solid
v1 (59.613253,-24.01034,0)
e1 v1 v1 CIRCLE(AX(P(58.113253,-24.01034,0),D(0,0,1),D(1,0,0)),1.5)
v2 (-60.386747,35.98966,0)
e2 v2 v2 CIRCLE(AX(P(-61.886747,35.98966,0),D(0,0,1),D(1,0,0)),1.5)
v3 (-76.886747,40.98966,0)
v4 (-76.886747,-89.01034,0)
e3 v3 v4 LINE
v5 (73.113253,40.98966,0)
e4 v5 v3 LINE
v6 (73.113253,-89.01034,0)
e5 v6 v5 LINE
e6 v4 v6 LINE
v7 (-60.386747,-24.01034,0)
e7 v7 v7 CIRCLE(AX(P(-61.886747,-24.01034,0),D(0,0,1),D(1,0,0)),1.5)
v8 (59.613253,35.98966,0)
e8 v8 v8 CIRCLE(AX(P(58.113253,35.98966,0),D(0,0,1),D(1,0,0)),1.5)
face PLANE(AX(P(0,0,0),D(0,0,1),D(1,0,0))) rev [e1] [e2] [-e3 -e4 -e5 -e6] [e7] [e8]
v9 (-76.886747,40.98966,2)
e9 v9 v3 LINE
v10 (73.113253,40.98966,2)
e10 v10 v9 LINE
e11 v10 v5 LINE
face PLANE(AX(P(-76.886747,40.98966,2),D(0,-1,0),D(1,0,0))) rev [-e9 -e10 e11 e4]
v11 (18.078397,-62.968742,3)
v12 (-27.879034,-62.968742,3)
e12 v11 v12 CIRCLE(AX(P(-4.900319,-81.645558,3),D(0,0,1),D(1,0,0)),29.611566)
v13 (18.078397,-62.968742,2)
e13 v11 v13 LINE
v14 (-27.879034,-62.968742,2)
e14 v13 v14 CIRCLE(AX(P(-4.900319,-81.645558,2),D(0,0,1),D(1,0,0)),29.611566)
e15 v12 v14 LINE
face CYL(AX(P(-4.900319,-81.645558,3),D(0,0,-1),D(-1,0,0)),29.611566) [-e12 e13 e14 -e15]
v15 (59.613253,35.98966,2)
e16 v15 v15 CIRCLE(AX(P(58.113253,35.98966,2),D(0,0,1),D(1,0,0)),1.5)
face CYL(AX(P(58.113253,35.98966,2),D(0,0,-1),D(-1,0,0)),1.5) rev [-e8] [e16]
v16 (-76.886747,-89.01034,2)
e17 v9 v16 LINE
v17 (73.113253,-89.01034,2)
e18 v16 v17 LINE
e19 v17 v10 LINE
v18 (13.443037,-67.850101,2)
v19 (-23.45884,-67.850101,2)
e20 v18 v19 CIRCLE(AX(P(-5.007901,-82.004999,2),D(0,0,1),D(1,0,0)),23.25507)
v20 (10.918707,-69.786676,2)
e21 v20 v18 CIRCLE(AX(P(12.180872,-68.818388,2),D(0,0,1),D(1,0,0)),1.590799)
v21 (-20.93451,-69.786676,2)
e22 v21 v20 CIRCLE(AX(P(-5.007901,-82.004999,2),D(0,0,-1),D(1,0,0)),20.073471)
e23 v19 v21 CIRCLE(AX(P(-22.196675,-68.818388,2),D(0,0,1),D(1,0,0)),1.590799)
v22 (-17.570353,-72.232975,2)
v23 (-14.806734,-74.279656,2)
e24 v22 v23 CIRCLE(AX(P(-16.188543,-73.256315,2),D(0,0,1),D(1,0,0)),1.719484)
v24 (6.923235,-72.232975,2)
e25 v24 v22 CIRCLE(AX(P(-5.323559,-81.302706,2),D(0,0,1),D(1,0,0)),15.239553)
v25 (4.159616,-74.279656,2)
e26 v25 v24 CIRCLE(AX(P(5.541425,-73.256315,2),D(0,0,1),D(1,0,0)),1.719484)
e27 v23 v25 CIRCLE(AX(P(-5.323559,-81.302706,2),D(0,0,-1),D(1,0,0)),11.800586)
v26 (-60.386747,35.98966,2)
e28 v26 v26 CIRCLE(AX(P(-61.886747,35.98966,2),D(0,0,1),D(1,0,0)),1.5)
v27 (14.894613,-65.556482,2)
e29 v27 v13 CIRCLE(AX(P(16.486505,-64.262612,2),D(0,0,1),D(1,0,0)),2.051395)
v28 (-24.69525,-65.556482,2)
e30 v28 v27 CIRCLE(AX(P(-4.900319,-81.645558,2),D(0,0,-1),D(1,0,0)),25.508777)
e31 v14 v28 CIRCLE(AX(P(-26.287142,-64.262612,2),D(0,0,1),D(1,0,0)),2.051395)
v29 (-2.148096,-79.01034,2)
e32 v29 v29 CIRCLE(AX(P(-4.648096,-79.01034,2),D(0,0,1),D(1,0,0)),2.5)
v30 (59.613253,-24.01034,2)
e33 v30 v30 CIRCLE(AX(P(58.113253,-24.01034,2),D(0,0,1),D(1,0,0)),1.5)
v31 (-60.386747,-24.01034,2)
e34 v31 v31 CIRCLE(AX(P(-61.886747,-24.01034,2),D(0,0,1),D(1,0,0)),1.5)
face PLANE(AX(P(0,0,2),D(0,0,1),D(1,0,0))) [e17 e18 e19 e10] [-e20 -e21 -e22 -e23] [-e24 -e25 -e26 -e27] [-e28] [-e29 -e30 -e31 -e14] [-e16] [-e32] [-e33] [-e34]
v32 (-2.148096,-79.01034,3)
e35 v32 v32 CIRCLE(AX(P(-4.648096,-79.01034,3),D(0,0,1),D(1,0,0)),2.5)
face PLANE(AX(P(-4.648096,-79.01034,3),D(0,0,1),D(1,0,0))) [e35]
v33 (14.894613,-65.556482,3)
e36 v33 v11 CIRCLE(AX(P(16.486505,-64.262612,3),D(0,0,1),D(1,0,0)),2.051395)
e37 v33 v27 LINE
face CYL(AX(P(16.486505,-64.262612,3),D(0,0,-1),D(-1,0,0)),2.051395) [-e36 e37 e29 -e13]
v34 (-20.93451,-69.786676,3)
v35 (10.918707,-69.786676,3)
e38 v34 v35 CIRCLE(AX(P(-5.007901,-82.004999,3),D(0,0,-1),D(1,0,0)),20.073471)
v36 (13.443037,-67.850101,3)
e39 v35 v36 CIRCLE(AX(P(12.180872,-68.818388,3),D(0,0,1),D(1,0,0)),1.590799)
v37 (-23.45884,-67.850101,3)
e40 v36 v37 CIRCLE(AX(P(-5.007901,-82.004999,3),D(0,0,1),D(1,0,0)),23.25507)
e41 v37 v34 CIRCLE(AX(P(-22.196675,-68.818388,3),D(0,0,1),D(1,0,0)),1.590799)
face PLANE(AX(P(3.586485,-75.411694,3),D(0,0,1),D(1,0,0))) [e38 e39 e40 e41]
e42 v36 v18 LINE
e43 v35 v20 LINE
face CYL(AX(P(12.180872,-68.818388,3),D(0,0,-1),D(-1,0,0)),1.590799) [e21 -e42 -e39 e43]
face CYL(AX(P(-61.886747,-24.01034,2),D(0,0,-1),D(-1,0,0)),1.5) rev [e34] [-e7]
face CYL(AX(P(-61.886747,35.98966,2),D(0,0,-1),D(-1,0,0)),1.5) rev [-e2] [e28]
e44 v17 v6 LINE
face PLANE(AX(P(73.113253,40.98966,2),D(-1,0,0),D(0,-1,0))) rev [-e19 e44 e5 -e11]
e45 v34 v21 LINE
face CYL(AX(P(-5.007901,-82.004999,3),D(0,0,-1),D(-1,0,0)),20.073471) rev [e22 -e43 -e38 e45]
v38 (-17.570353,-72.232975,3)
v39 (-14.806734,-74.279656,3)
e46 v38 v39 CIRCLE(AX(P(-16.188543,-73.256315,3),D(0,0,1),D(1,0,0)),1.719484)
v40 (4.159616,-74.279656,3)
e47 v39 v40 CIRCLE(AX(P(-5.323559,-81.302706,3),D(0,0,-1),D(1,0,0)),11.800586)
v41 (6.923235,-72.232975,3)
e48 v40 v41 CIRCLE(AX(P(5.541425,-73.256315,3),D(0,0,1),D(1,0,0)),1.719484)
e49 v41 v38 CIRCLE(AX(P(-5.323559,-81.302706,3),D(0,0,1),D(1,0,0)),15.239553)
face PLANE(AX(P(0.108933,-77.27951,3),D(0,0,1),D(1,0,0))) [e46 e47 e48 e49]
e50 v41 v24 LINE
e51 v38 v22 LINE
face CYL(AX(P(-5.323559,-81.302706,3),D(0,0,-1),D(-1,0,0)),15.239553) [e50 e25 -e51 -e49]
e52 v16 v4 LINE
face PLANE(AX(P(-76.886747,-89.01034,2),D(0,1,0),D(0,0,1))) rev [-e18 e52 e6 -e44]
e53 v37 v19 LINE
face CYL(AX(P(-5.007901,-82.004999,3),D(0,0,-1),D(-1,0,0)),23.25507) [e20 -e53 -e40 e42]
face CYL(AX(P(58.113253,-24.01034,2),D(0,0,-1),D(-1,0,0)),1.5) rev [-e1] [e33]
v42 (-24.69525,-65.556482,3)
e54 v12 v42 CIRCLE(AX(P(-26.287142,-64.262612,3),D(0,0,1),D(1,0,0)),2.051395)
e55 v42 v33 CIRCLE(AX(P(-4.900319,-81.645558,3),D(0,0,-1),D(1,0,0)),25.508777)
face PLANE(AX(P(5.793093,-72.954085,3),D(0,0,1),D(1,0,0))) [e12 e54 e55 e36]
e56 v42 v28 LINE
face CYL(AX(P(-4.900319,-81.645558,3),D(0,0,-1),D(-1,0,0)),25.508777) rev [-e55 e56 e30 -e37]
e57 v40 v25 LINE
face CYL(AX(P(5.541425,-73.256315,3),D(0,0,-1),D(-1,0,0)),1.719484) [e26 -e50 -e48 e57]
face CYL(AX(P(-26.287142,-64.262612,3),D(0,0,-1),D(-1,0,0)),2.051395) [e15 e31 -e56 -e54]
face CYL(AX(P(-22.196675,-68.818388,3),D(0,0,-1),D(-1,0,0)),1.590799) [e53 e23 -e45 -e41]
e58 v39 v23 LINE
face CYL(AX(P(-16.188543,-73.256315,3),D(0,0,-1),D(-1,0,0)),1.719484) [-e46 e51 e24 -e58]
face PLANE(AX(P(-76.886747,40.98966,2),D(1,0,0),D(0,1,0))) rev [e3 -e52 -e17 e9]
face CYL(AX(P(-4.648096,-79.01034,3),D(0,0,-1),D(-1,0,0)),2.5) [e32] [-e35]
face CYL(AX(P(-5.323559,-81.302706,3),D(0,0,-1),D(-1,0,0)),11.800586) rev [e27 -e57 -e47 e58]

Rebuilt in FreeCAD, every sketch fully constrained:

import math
import FreeCAD as App
import Part
import Sketcher

V = App.Vector

doc = App.newDocument("Part")
body = doc.addObject("PartDesign::Body", "Body")

# Sketch on XY plane
sketch1 = body.newObject("Sketcher::SketchObject", "Sketch")
sketch1.AttachmentSupport = (doc.getObject("XY_Plane"), [""])
sketch1.MapMode = "FlatFace"
sketch1.addGeometry(Part.LineSegment(V(-76.886747, 40.98966, 0), V(-76.886747, -89.01034, 0)), False)
sketch1.addGeometry(Part.LineSegment(V(-76.886747, -89.01034, 0), V(73.113253, -89.01034, 0)), False)
sketch1.addGeometry(Part.LineSegment(V(73.113253, -89.01034, 0), V(73.113253, 40.98966, 0)), False)
sketch1.addGeometry(Part.LineSegment(V(73.113253, 40.98966, 0), V(-76.886747, 40.98966, 0)), False)
sketch1.addGeometry(Part.Circle(V(-61.886747, -24.01034, 0), V(0, 0, 1), 1.5), False)
sketch1.addGeometry(Part.Circle(V(58.113253, -24.01034, 0), V(0, 0, 1), 1.5), False)
sketch1.addGeometry(Part.Circle(V(-61.886747, 35.98966, 0), V(0, 0, 1), 1.5), False)
sketch1.addGeometry(Part.Circle(V(58.113253, 35.98966, 0), V(0, 0, 1), 1.5), False)
sketch1.addConstraint(Sketcher.Constraint("Coincident", 0, 2, 1, 1))
sketch1.addConstraint(Sketcher.Constraint("Coincident", 1, 2, 2, 1))
sketch1.addConstraint(Sketcher.Constraint("Coincident", 2, 2, 3, 1))
sketch1.addConstraint(Sketcher.Constraint("Coincident", 3, 2, 0, 1))
sketch1.addConstraint(Sketcher.Constraint("Vertical", 0))
sketch1.addConstraint(Sketcher.Constraint("Horizontal", 1))
sketch1.addConstraint(Sketcher.Constraint("Vertical", 2))
sketch1.addConstraint(Sketcher.Constraint("Horizontal", 3))
sketch1.addConstraint(Sketcher.Constraint("Equal", 4, 5))
sketch1.addConstraint(Sketcher.Constraint("Equal", 5, 6))
sketch1.addConstraint(Sketcher.Constraint("Equal", 6, 7))
sketch1.addConstraint(Sketcher.Constraint("Horizontal", 4, 3, 5, 3))
sketch1.addConstraint(Sketcher.Constraint("Horizontal", 6, 3, 7, 3))
sketch1.addConstraint(Sketcher.Constraint("Vertical", 4, 3, 6, 3))
sketch1.addConstraint(Sketcher.Constraint("Vertical", 5, 3, 7, 3))
sketch1.addConstraint(Sketcher.Constraint("Diameter", 4, 3.0))
sketch1.addConstraint(Sketcher.Constraint("DistanceX", 1, 1, 1, 2, 150.0))
sketch1.addConstraint(Sketcher.Constraint("DistanceY", 0, 2, 0, 1, 130.0))
sketch1.addConstraint(Sketcher.Constraint("DistanceX", 4, 3, 5, 3, 120.0))
sketch1.addConstraint(Sketcher.Constraint("DistanceY", 4, 3, 6, 3, 60.0))
sketch1.addConstraint(Sketcher.Constraint("DistanceX", 0, 2, 4, 3, 15.0))
sketch1.addConstraint(Sketcher.Constraint("DistanceY", 0, 2, 4, 3, 65.0))
sketch1.addConstraint(Sketcher.Constraint("DistanceY", 4, 3, -1, 1, 24.01034))
sketch1.addConstraint(Sketcher.Constraint("DistanceX", 4, 3, -1, 1, 61.886747))
pad1 = body.newObject("PartDesign::Pad", "Pad")
pad1.Profile = sketch1
pad1.Length = 2

# Sketch on XY plane
sketch2 = body.newObject("Sketcher::SketchObject", "Sketch001")
sketch2.AttachmentSupport = (doc.getObject("XY_Plane"), [""])
sketch2.MapMode = "FlatFace"
sketch2.AttachmentOffset = App.Placement(V(0, 0, 2), App.Rotation())
sketch2.addGeometry(Part.Circle(V(-4.648096, -79.01034, 0), V(0, 0, 1), 2.5), False)
sketch2.addGeometry(Part.ArcOfCircle(Part.Circle(V(-5.323559, -81.302706, 0), V(0, 0, 1), 15.239553), math.radians(36.522908), math.radians(143.477092)), False)
sketch2.addGeometry(Part.ArcOfCircle(Part.Circle(V(-16.188543, -73.256315, 0), V(0, 0, 1), 1.719484), math.radians(143.477092), math.radians(323.477092)), False)
sketch2.addGeometry(Part.ArcOfCircle(Part.Circle(V(-5.323559, -81.302706, 0), V(0, 0, 1), 11.800586), math.radians(36.522908), math.radians(143.477092)), False)
sketch2.addGeometry(Part.ArcOfCircle(Part.Circle(V(5.541425, -73.256315, 0), V(0, 0, 1), 1.719484), math.radians(-143.477092), math.radians(36.522908)), False)
sketch2.addGeometry(Part.ArcOfCircle(Part.Circle(V(-4.900319, -81.645558, 0), V(0, 0, 1), 29.611566), math.radians(39.103785), math.radians(140.896215)), False)
sketch2.addGeometry(Part.ArcOfCircle(Part.Circle(V(-26.287142, -64.262612, 0), V(0, 0, 1), 2.051395), math.radians(140.896215), math.radians(320.896215)), False)
sketch2.addGeometry(Part.ArcOfCircle(Part.Circle(V(-4.900319, -81.645558, 0), V(0, 0, 1), 25.508777), math.radians(39.103785), math.radians(140.896215)), False)
sketch2.addGeometry(Part.ArcOfCircle(Part.Circle(V(16.486505, -64.262612, 0), V(0, 0, 1), 2.051395), math.radians(-140.896215), math.radians(39.103785)), False)
sketch2.addGeometry(Part.ArcOfCircle(Part.Circle(V(-5.007901, -82.004999, 0), V(0, 0, 1), 23.25507), math.radians(37.494126), math.radians(142.505874)), False)
sketch2.addGeometry(Part.ArcOfCircle(Part.Circle(V(-22.196675, -68.818388, 0), V(0, 0, 1), 1.590799), math.radians(142.505874), math.radians(322.505874)), False)
sketch2.addGeometry(Part.ArcOfCircle(Part.Circle(V(-5.007901, -82.004999, 0), V(0, 0, 1), 20.073471), math.radians(37.494126), math.radians(142.505874)), False)
sketch2.addGeometry(Part.ArcOfCircle(Part.Circle(V(12.180872, -68.818388, 0), V(0, 0, 1), 1.590799), math.radians(-142.505874), math.radians(37.494126)), False)
sketch2.addConstraint(Sketcher.Constraint("Tangent", 1, 2, 2, 1))
sketch2.addConstraint(Sketcher.Constraint("Tangent", 2, 2, 3, 2))
sketch2.addConstraint(Sketcher.Constraint("Tangent", 3, 1, 4, 1))
sketch2.addConstraint(Sketcher.Constraint("Tangent", 4, 2, 1, 1))
sketch2.addConstraint(Sketcher.Constraint("Tangent", 5, 2, 6, 1))
sketch2.addConstraint(Sketcher.Constraint("Tangent", 6, 2, 7, 2))
sketch2.addConstraint(Sketcher.Constraint("Tangent", 7, 1, 8, 1))
sketch2.addConstraint(Sketcher.Constraint("Tangent", 8, 2, 5, 1))
sketch2.addConstraint(Sketcher.Constraint("Tangent", 9, 2, 10, 1))
sketch2.addConstraint(Sketcher.Constraint("Tangent", 10, 2, 11, 2))
sketch2.addConstraint(Sketcher.Constraint("Tangent", 11, 1, 12, 1))
sketch2.addConstraint(Sketcher.Constraint("Tangent", 12, 2, 9, 1))
sketch2.addConstraint(Sketcher.Constraint("Coincident", 3, 3, 1, 3))
sketch2.addConstraint(Sketcher.Constraint("Coincident", 7, 3, 5, 3))
sketch2.addConstraint(Sketcher.Constraint("Coincident", 11, 3, 9, 3))
sketch2.addConstraint(Sketcher.Constraint("Horizontal", 2, 3, 4, 3))
sketch2.addConstraint(Sketcher.Constraint("Horizontal", 6, 3, 8, 3))
sketch2.addConstraint(Sketcher.Constraint("Horizontal", 10, 3, 12, 3))
sketch2.addConstraint(Sketcher.Constraint("Diameter", 0, 5.0))
sketch2.addConstraint(Sketcher.Constraint("Radius", 10, 1.590799))
sketch2.addConstraint(Sketcher.Constraint("Radius", 9, 23.25507))
sketch2.addConstraint(Sketcher.Constraint("DistanceY", 9, 3, -1, 1, 82.004999))
sketch2.addConstraint(Sketcher.Constraint("Radius", 1, 15.239553))
sketch2.addConstraint(Sketcher.Constraint("Radius", 2, 1.719484))
sketch2.addConstraint(Sketcher.Constraint("Radius", 5, 29.611566))
sketch2.addConstraint(Sketcher.Constraint("Radius", 6, 2.051395))
sketch2.addConstraint(Sketcher.Constraint("DistanceX", 9, 3, -1, 1, 5.007901))
sketch2.addConstraint(Sketcher.Constraint("DistanceY", 9, 2, -1, 1, 67.850101))
sketch2.addConstraint(Sketcher.Constraint("DistanceX", 6, 3, 2, 3, 10.098599))
sketch2.addConstraint(Sketcher.Constraint("DistanceX", 0, 3, 8, 3, 21.134601))
sketch2.addConstraint(Sketcher.Constraint("DistanceY", 7, 3, 3, 1, 7.365902))
sketch2.addConstraint(Sketcher.Constraint("DistanceX", 5, 2, 2, 2, 13.072301))
sketch2.addConstraint(Sketcher.Constraint("DistanceY", 1, 2, 10, 2, 2.446298))
sketch2.addConstraint(Sketcher.Constraint("DistanceX", 11, 1, 8, 3, 5.567798))
sketch2.addConstraint(Sketcher.Constraint("DistanceY", 0, 3, -1, 1, 79.01034))
sketch2.addConstraint(Sketcher.Constraint("DistanceX", 1, 3, -1, 1, 5.323559))
pad2 = body.newObject("PartDesign::Pad", "Pad001")
pad2.Profile = sketch2
pad2.Length = 1

doc.recompute()
